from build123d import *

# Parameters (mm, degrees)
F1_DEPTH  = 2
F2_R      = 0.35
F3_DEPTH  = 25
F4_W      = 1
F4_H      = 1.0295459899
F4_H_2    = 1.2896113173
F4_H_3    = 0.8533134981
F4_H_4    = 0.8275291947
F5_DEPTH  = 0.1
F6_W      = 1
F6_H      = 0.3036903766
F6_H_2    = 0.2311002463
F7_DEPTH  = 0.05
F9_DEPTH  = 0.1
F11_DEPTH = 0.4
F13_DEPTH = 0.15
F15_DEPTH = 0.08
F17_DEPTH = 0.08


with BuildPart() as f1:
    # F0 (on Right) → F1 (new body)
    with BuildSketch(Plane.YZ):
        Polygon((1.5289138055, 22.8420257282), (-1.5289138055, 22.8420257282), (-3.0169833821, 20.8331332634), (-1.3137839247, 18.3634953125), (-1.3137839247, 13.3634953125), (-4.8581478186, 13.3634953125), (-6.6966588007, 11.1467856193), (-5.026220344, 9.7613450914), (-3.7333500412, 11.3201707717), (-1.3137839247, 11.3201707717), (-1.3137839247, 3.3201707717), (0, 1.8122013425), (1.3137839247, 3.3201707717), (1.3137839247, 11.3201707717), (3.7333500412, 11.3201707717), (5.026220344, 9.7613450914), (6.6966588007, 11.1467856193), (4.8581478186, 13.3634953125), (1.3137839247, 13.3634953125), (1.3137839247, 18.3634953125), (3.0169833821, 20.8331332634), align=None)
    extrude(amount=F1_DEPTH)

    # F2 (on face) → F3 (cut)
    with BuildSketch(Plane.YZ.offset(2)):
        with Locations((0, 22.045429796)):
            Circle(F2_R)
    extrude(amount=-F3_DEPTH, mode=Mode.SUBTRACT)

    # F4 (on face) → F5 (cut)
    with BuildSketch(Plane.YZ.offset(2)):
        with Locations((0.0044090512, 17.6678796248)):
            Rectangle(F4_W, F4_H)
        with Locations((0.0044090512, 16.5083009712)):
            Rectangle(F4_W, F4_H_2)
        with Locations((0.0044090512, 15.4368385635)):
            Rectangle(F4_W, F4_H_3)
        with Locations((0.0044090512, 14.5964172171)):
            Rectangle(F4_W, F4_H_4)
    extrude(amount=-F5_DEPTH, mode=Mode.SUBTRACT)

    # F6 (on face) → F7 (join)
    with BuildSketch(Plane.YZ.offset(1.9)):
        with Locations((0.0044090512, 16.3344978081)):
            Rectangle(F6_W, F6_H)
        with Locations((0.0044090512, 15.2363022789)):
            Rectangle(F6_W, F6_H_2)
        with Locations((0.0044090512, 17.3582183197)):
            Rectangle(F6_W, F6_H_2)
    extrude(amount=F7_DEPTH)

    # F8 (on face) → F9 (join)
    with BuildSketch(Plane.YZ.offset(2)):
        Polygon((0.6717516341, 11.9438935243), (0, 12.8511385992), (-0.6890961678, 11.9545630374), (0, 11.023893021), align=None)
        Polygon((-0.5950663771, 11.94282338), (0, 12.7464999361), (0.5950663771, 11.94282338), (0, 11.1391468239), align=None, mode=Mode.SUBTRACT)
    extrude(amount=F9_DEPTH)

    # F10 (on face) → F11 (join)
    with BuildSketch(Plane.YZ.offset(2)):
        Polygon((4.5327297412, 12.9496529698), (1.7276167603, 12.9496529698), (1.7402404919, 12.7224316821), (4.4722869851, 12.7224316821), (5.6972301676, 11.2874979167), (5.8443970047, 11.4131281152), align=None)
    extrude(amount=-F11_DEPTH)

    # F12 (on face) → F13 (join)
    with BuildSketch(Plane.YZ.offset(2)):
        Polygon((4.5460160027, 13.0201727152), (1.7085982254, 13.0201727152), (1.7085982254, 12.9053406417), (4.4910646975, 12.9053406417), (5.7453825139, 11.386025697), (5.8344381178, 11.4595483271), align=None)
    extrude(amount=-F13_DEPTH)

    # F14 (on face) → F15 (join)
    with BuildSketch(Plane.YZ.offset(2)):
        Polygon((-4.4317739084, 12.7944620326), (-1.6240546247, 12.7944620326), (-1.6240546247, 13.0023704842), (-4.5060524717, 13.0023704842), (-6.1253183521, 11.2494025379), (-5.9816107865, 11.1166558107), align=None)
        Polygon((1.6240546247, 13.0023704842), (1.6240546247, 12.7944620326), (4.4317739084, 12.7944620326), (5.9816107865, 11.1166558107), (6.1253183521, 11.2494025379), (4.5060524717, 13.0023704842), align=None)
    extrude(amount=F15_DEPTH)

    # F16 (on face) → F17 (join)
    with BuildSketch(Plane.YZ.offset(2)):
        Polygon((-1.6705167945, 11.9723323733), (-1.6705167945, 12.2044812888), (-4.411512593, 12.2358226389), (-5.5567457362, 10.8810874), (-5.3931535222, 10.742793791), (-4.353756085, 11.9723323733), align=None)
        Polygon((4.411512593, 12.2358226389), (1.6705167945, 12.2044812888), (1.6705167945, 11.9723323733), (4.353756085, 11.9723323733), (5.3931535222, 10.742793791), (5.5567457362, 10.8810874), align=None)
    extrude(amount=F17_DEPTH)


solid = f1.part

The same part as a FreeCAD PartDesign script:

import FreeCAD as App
import Part
import Sketcher

V = App.Vector
Q = App.Units.Quantity


def add_polygon(sketch, points):
    """Adds a closed chain of lines whose ends are joined by coincident constraints."""
    first, n = sketch.GeometryCount, len(points)
    for a, b in zip(points, points[1:] + points[:1]):
        sketch.addGeometry(Part.LineSegment(App.Vector(*a, 0), App.Vector(*b, 0)), False)
    for i in range(n):
        sketch.addConstraint(Sketcher.Constraint("Coincident", first + i, 2, first + (i + 1) % n, 1))

doc = App.newDocument("Part")
body = doc.addObject("PartDesign::Body", "Body")

sketch1 = body.newObject("Sketcher::SketchObject", "Sketch")
sketch1.AttachmentSupport = (doc.getObject("YZ_Plane"), [""])
sketch1.MapMode = "FlatFace"
add_polygon(sketch1, [(1.5, 22.8), (-1.5, 22.8), (-3, 20.8), (-1.3, 18.4), (-1.3, 13.4), (-4.9, 13.4), (-6.7, 11.1), (-5, 9.8), (-3.7, 11.3), (-1.3, 11.3), (-1.3, 3.3), (0, 1.8), (1.3, 3.3), (1.3, 11.3), (3.7, 11.3), (5, 9.8), (6.7, 11.1), (4.9, 13.4), (1.3, 13.4), (1.3, 18.4), (3, 20.8)])
sketch1.addConstraint(Sketcher.Constraint("Horizontal", 0))
sketch1.addConstraint(Sketcher.Constraint("Vertical", 3))
sketch1.addConstraint(Sketcher.Constraint("Horizontal", 4))
sketch1.addConstraint(Sketcher.Constraint("Horizontal", 8))
sketch1.addConstraint(Sketcher.Constraint("Vertical", 9))
sketch1.addConstraint(Sketcher.Constraint("Vertical", 12))
sketch1.addConstraint(Sketcher.Constraint("Horizontal", 13))
sketch1.addConstraint(Sketcher.Constraint("Horizontal", 17))
sketch1.addConstraint(Sketcher.Constraint("Vertical", 18))
sketch1.addConstraint(Sketcher.Constraint("Symmetric", 9, 2, 11, 2, -2))
sketch1.addConstraint(Sketcher.Constraint("Symmetric", 7, 2, 13, 2, -2))
sketch1.addConstraint(Sketcher.Constraint("Symmetric", 6, 2, 14, 2, -2))
sketch1.addConstraint(Sketcher.Constraint("Symmetric", 5, 2, 15, 2, -2))
sketch1.addConstraint(Sketcher.Constraint("Symmetric", 4, 2, 16, 2, -2))
sketch1.addConstraint(Sketcher.Constraint("Symmetric", 2, 2, 18, 2, -2))
sketch1.addConstraint(Sketcher.Constraint("Symmetric", 1, 2, 19, 2, -2))
sketch1.addConstraint(Sketcher.Constraint("PointOnObject", 10, 2, -2))
sketch1.addConstraint(Sketcher.Constraint("Perpendicular", 5, 6))
sketch1.addConstraint(Sketcher.Constraint("Perpendicular", 6, 7))
sketch1.addConstraint(Sketcher.Constraint("Vertical", 3, 2, 8, 2))
sketch1.addConstraint(Sketcher.Constraint("Equal", 1, 20))
sketch1.addConstraint(Sketcher.Constraint("DistanceY", 3, 2, 3, 1, Q("5 mm")))
sketch1.addConstraint(Sketcher.Constraint("DistanceY", 9, 2, 9, 1, Q("8 mm")))
sketch1.addConstraint(Sketcher.Constraint("Distance", 2, Q("3 mm")))
sketch1.addConstraint(Sketcher.Constraint("Distance", 10, Q("2 mm")))
sketch1.addConstraint(Sketcher.Constraint("Distance", 1, Q("2.5 mm")))
sketch1.addConstraint(Sketcher.Constraint("DistanceY", -1, 1, 10, 2, Q("1.812201 mm")))
sketch1.addConstraint(Sketcher.Constraint("DistanceX", 1, 2, 2, 2, Q("1.703199 mm")))
sketch1.addConstraint(Sketcher.Constraint("DistanceX", 7, 2, 13, 2, Q("7.4667 mm")))
sketch1.addConstraint(Sketcher.Constraint("Distance", 6, Q("2.17021 mm")))
sketch1.addConstraint(Sketcher.Constraint("DistanceX", 0, 2, 0, 1, Q("3.057828 mm")))
sketch1.addConstraint(Sketcher.Constraint("DistanceX", 4, 2, 4, 1, Q("3.544364 mm")))
sketch1.addConstraint(Sketcher.Constraint("DistanceX", 8, 1, 8, 2, Q("2.419566 mm")))
sketch1.addConstraint(Sketcher.Constraint("DistanceX", 5, 2, -1, 1, Q("6.696659 mm")))
sketch1.addConstraint(Sketcher.Constraint("DistanceX", 6, 2, -1, 1, Q("5.02622 mm")))
pad1 = body.newObject("PartDesign::Pad", "Pad")
pad1.Profile = sketch1
pad1.Length = 2

sketch2 = body.newObject("Sketcher::SketchObject", "Sketch001")
sketch2.AttachmentSupport = (doc.getObject("YZ_Plane"), [""])
sketch2.MapMode = "FlatFace"
sketch2.AttachmentOffset = App.Placement(V(0, 0, 2), App.Rotation())
sketch2.addGeometry(Part.Circle(V(0, 22.05, 0), V(0, 0, 1), 0.35), False)
sketch2.addConstraint(Sketcher.Constraint("PointOnObject", 0, 3, -2))
sketch2.addConstraint(Sketcher.Constraint("Diameter", 0, Q("0.7 mm")))
sketch2.addConstraint(Sketcher.Constraint("DistanceY", -1, 1, 0, 3, Q("22.04543 mm")))
pocket1 = body.newObject("PartDesign::Pocket", "Pocket")
pocket1.Profile = sketch2
pocket1.Length = 25

sketch3 = body.newObject("Sketcher::SketchObject", "Sketch002")
sketch3.AttachmentSupport = (doc.getObject("YZ_Plane"), [""])
sketch3.MapMode = "FlatFace"
sketch3.AttachmentOffset = App.Placement(V(0, 0, 2), App.Rotation())
add_polygon(sketch3, [(-0.5, 18.2), (-0.5, 14.2), (0.5, 14.2), (0.5, 18.2)])
sketch3.addConstraint(Sketcher.Constraint("Vertical", 0))
sketch3.addConstraint(Sketcher.Constraint("Horizontal", 1))
sketch3.addConstraint(Sketcher.Constraint("Vertical", 2))
sketch3.addConstraint(Sketcher.Constraint("Horizontal", 3))
sketch3.addConstraint(Sketcher.Constraint("DistanceX", 1, 1, 1, 2, Q("1 mm")))
sketch3.addConstraint(Sketcher.Constraint("DistanceY", 0, 2, 0, 1, Q("4 mm")))
sketch3.addConstraint(Sketcher.Constraint("DistanceX", 0, 2, -1, 1, Q("0.495591 mm")))
sketch3.addConstraint(Sketcher.Constraint("DistanceY", -1, 1, 0, 2, Q("14.182653 mm")))
pocket2 = body.newObject("PartDesign::Pocket", "Pocket001")
pocket2.Profile = sketch3
pocket2.Length = 0.1

sketch4 = body.newObject("Sketcher::SketchObject", "Sketch003")
sketch4.AttachmentSupport = (doc.getObject("YZ_Plane"), [""])
sketch4.MapMode = "FlatFace"
sketch4.AttachmentOffset = App.Placement(V(0, 0, 1.9), App.Rotation())
add_polygon(sketch4, [(-0.5, 16.49), (-0.5, 16.18), (0.5, 16.18), (0.5, 16.49)])
add_polygon(sketch4, [(-0.5, 15.35), (-0.5, 15.12), (0.5, 15.12), (0.5, 15.35)])
add_polygon(sketch4, [(-0.5, 17.47), (-0.5, 17.24), (0.5, 17.24), (0.5, 17.47)])
sketch4.addConstraint(Sketcher.Constraint("Vertical", 0))
sketch4.addConstraint(Sketcher.Constraint("Horizontal", 1))
sketch4.addConstraint(Sketcher.Constraint("Vertical", 2))
sketch4.addConstraint(Sketcher.Constraint("Horizontal", 3))
sketch4.addConstraint(Sketcher.Constraint("Vertical", 4))
sketch4.addConstraint(Sketcher.Constraint("Horizontal", 5))
sketch4.addConstraint(Sketcher.Constraint("Vertical", 6))
sketch4.addConstraint(Sketcher.Constraint("Horizontal", 7))
sketch4.addConstraint(Sketcher.Constraint("Vertical", 8))
sketch4.addConstraint(Sketcher.Constraint("Horizontal", 9))
sketch4.addConstraint(Sketcher.Constraint("Vertical", 10))
sketch4.addConstraint(Sketcher.Constraint("Horizontal", 11))
sketch4.addConstraint(Sketcher.Constraint("Vertical", 3, 2, 4, 2))
sketch4.addConstraint(Sketcher.Constraint("Vertical", 2, 2, 5, 2))
sketch4.addConstraint(Sketcher.Constraint("Vertical", 7, 2, 8, 2))
sketch4.addConstraint(Sketcher.Constraint("Vertical", 6, 2, 9, 2))
sketch4.addConstraint(Sketcher.Constraint("Equal", 6, 8))
sketch4.addConstraint(Sketcher.Constraint("DistanceX", 1, 1, 1, 2, Q("1 mm")))
sketch4.addConstraint(Sketcher.Constraint("DistanceY", 4, 2, 4, 1, Q("0.2311 mm")))
sketch4.addConstraint(Sketcher.Constraint("DistanceY", 0, 2, 0, 1, Q("0.30369 mm")))
sketch4.addConstraint(Sketcher.Constraint("DistanceY", 4, 2, 0, 2, Q("1.0619 mm")))
sketch4.addConstraint(Sketcher.Constraint("DistanceX", 0, 2, -1, 1, Q("0.495591 mm")))
sketch4.addConstraint(Sketcher.Constraint("DistanceY", -1, 1, 8, 2, Q("17.242668 mm")))
sketch4.addConstraint(Sketcher.Constraint("DistanceY", -1, 1, 0, 2, Q("16.182653 mm")))
pad2 = body.newObject("PartDesign::Pad", "Pad001")
pad2.Profile = sketch4
pad2.Length = 0.05

sketch5 = body.newObject("Sketcher::SketchObject", "Sketch004")
sketch5.AttachmentSupport = (doc.getObject("YZ_Plane"), [""])
sketch5.MapMode = "FlatFace"
sketch5.AttachmentOffset = App.Placement(V(0, 0, 2), App.Rotation())
add_polygon(sketch5, [(0.7, 11.9), (0, 12.9), (-0.7, 12), (0, 11)])
add_polygon(sketch5, [(0, 11.1), (-0.6, 11.9), (0, 12.7), (0.6, 11.9)])
sketch5.addConstraint(Sketcher.Constraint("Symmetric", 4, 2, 6, 2, -2))
sketch5.addConstraint(Sketcher.Constraint("PointOnObject", 0, 2, -2))
sketch5.addConstraint(Sketcher.Constraint("PointOnObject", 2, 2, -2))
sketch5.addConstraint(Sketcher.Constraint("PointOnObject", 5, 2, -2))
sketch5.addConstraint(Sketcher.Constraint("PointOnObject", 7, 2, -2))
sketch5.addConstraint(Sketcher.Constraint("Parallel", 0, 2))
sketch5.addConstraint(Sketcher.Constraint("Parallel", 2, 4))
sketch5.addConstraint(Sketcher.Constraint("Parallel", 4, 6))
sketch5.addConstraint(Sketcher.Constraint("Distance", 4, Q("1 mm")))
sketch5.addConstraint(Sketcher.Constraint("DistanceY", 2, 2, 3, 2, Q("0.920001 mm")))
sketch5.addConstraint(Sketcher.Constraint("DistanceY", -1, 1, 5, 2, Q("12.7465 mm")))
sketch5.addConstraint(Sketcher.Constraint("Distance", 0, Q("1.128868 mm")))
sketch5.addConstraint(Sketcher.Constraint("DistanceY", -1, 1, 0, 2, Q("12.851139 mm")))
sketch5.addConstraint(Sketcher.Constraint("DistanceX", -1, 1, 3, 2, Q("0.671752 mm")))
sketch5.addConstraint(Sketcher.Constraint("DistanceY", 2, 2, 1, 2, Q("0.93067 mm")))
pad3 = body.newObject("PartDesign::Pad", "Pad002")
pad3.Profile = sketch5
pad3.Length = 0.1

sketch6 = body.newObject("Sketcher::SketchObject", "Sketch005")
sketch6.AttachmentSupport = (doc.getObject("YZ_Plane"), [""])
sketch6.MapMode = "FlatFace"
sketch6.AttachmentOffset = App.Placement(V(0, 0, 2), App.Rotation())
add_polygon(sketch6, [(4.53, 12.95), (1.73, 12.95), (1.74, 12.72), (4.47, 12.72), (5.7, 11.29), (5.84, 11.41)])
sketch6.addConstraint(Sketcher.Constraint("Horizontal", 0))
sketch6.addConstraint(Sketcher.Constraint("Horizontal", 2))
sketch6.addConstraint(Sketcher.Constraint("Perpendicular", 3, 4))
sketch6.addConstraint(Sketcher.Constraint("Perpendicular", 4, 5))
sketch6.addConstraint(Sketcher.Constraint("DistanceX", 5, 2, 3, 2, Q("1.1645 mm")))
sketch6.addConstraint(Sketcher.Constraint("Distance", 1, Q("0.227572 mm")))
sketch6.addConstraint(Sketcher.Constraint("Distance", 3, Q("1.886669 mm")))
sketch6.addConstraint(Sketcher.Constraint("DistanceX", 0, 2, 0, 1, Q("2.805113 mm")))
sketch6.addConstraint(Sketcher.Constraint("DistanceX", 2, 1, 2, 2, Q("2.732046 mm")))
sketch6.addConstraint(Sketcher.Constraint("DistanceX", -1, 1, 1, 2, Q("1.74024 mm")))
sketch6.addConstraint(Sketcher.Constraint("DistanceY", -1, 1, 1, 2, Q("12.722432 mm")))
sketch6.addConstraint(Sketcher.Constraint("DistanceX", -1, 1, 3, 2, Q("5.69723 mm")))
pad4 = body.newObject("PartDesign::Pad", "Pad003")
pad4.Profile = sketch6
pad4.Length = 0.4
pad4.Reversed = True

sketch7 = body.newObject("Sketcher::SketchObject", "Sketch006")
sketch7.AttachmentSupport = (doc.getObject("YZ_Plane"), [""])
sketch7.MapMode = "FlatFace"
sketch7.AttachmentOffset = App.Placement(V(0, 0, 2), App.Rotation())
add_polygon(sketch7, [(4.55, 13.02), (1.71, 13.02), (1.71, 12.91), (4.49, 12.91), (5.75, 11.39), (5.83, 11.46)])
sketch7.addConstraint(Sketcher.Constraint("Horizontal", 0))
sketch7.addConstraint(Sketcher.Constraint("Vertical", 1))
sketch7.addConstraint(Sketcher.Constraint("Horizontal", 2))
sketch7.addConstraint(Sketcher.Constraint("Perpendicular", 3, 4))
sketch7.addConstraint(Sketcher.Constraint("Perpendicular", 4, 5))
sketch7.addConstraint(Sketcher.Constraint("DistanceX", -1, 1, 0, 2, Q("1.708598 mm")))
sketch7.addConstraint(Sketcher.Constraint("DistanceX", 0, 2, 0, 1, Q("2.837418 mm")))
sketch7.addConstraint(Sketcher.Constraint("DistanceX", 2, 1, 2, 2, Q("2.782466 mm")))
sketch7.addConstraint(Sketcher.Constraint("DistanceY", 1, 2, 1, 1, Q("0.114832 mm")))
sketch7.addConstraint(Sketcher.Constraint("DistanceY", -1, 1, 1, 2, Q("12.905341 mm")))
sketch7.addConstraint(Sketcher.Constraint("DistanceX", -1, 1, 4, 2, Q("5.834438 mm")))
sketch7.addConstraint(Sketcher.Constraint("DistanceY", -1, 1, 4, 2, Q("11.459548 mm")))
pad5 = body.newObject("PartDesign::Pad", "Pad004")
pad5.Profile = sketch7
pad5.Length = 0.15
pad5.Reversed = True

sketch8 = body.newObject("Sketcher::SketchObject", "Sketch007")
sketch8.AttachmentSupport = (doc.getObject("YZ_Plane"), [""])
sketch8.MapMode = "FlatFace"
sketch8.AttachmentOffset = App.Placement(V(0, 0, 2), App.Rotation())
add_polygon(sketch8, [(-4.43, 12.79), (-1.62, 12.79), (-1.62, 13), (-4.51, 13), (-6.13, 11.25), (-5.98, 11.12)])
add_polygon(sketch8, [(1.62, 13), (1.62, 12.79), (4.43, 12.79), (5.98, 11.12), (6.13, 11.25), (4.51, 13)])
sketch8.addConstraint(Sketcher.Constraint("Horizontal", 0))
sketch8.addConstraint(Sketcher.Constraint("Vertical", 1))
sketch8.addConstraint(Sketcher.Constraint("Horizontal", 2))
sketch8.addConstraint(Sketcher.Constraint("Vertical", 6))
sketch8.addConstraint(Sketcher.Constraint("Horizontal", 7))
sketch8.addConstraint(Sketcher.Constraint("Horizontal", 11))
sketch8.addConstraint(Sketcher.Constraint("Symmetric", 0, 2, 6, 2, -2))
sketch8.addConstraint(Sketcher.Constraint("Symmetric", 4, 2, 8, 2, -2))
sketch8.addConstraint(Sketcher.Constraint("Symmetric", 3, 2, 9, 2, -2))
sketch8.addConstraint(Sketcher.Constraint("Symmetric", 2, 2, 10, 2, -2))
sketch8.addConstraint(Sketcher.Constraint("Perpendicular", 3, 4))
sketch8.addConstraint(Sketcher.Constraint("Perpendicular", 4, 5))
sketch8.addConstraint(Sketcher.Constraint("Perpendicular", 8, 9))
sketch8.addConstraint(Sketcher.Constraint("DistanceX", 0, 1, 0, 2, Q("2.807719 mm")))
sketch8.addConstraint(Sketcher.Constraint("DistanceY", 1, 1, 1, 2, Q("0.207908 mm")))
sketch8.addConstraint(Sketcher.Constraint("Distance", 5, Q("2.284081 mm")))
sketch8.addConstraint(Sketcher.Constraint("DistanceX", 2, 2, 2, 1, Q("2.881998 mm")))
sketch8.addConstraint(Sketcher.Constraint("DistanceY", -1, 1, 1, 2, Q("13.00237 mm")))
sketch8.addConstraint(Sketcher.Constraint("DistanceX", 3, 2, -1, 1, Q("6.125318 mm")))
sketch8.addConstraint(Sketcher.Constraint("DistanceX", 4, 2, -1, 1, Q("5.981611 mm")))
pad6 = body.newObject("PartDesign::Pad", "Pad005")
pad6.Profile = sketch8
pad6.Length = 0.08

sketch9 = body.newObject("Sketcher::SketchObject", "Sketch008")
sketch9.AttachmentSupport = (doc.getObject("YZ_Plane"), [""])
sketch9.MapMode = "FlatFace"
sketch9.AttachmentOffset = App.Placement(V(0, 0, 2), App.Rotation())
add_polygon(sketch9, [(-1.67, 11.97), (-1.67, 12.2), (-4.41, 12.24), (-5.56, 10.88), (-5.39, 10.74), (-4.35, 11.97)])
add_polygon(sketch9, [(4.41, 12.24), (1.67, 12.2), (1.67, 11.97), (4.35, 11.97), (5.39, 10.74), (5.56, 10.88)])
sketch9.addConstraint(Sketcher.Constraint("Vertical", 0))
sketch9.addConstraint(Sketcher.Constraint("Horizontal", 5))
sketch9.addConstraint(Sketcher.Constraint("Vertical", 7))
sketch9.addConstraint(Sketcher.Constraint("Horizontal", 8))
sketch9.addConstraint(Sketcher.Constraint("Symmetric", 0, 2, 6, 2, -2))
sketch9.addConstraint(Sketcher.Constraint("Symmetric", 4, 2, 8, 2, -2))
sketch9.addConstraint(Sketcher.Constraint("Symmetric", 3, 2, 9, 2, -2))
sketch9.addConstraint(Sketcher.Constraint("Symmetric", 2, 2, 10, 2, -2))
sketch9.addConstraint(Sketcher.Constraint("Symmetric", 1, 2, 11, 2, -2))
sketch9.addConstraint(Sketcher.Constraint("Perpendicular", 2, 3))
sketch9.addConstraint(Sketcher.Constraint("Perpendicular", 3, 4))
sketch9.addConstraint(Sketcher.Constraint("DistanceX", 5, 1, 5, 2, Q("2.683239 mm")))
sketch9.addConstraint(Sketcher.Constraint("DistanceY", 0, 1, 0, 2, Q("0.232149 mm")))
sketch9.addConstraint(Sketcher.Constraint("Distance", 2, Q("1.773941 mm")))
sketch9.addConstraint(Sketcher.Constraint("DistanceY", -1, 1, 0, 2, Q("12.204481 mm")))
sketch9.addConstraint(Sketcher.Constraint("DistanceY", 0, 2, 1, 2, Q("0.031341 mm")))
sketch9.addConstraint(Sketcher.Constraint("DistanceX", 2, 2, 0, 2, Q("3.886229 mm")))
sketch9.addConstraint(Sketcher.Constraint("DistanceX", 3, 2, 1, 2, Q("0.981641 mm")))
sketch9.addConstraint(Sketcher.Constraint("DistanceX", 1, 2, 6, 2, Q("6.082029 mm")))
pad7 = body.newObject("PartDesign::Pad", "Pad006")
pad7.Profile = sketch9
pad7.Length = 0.08

doc.recompute()
